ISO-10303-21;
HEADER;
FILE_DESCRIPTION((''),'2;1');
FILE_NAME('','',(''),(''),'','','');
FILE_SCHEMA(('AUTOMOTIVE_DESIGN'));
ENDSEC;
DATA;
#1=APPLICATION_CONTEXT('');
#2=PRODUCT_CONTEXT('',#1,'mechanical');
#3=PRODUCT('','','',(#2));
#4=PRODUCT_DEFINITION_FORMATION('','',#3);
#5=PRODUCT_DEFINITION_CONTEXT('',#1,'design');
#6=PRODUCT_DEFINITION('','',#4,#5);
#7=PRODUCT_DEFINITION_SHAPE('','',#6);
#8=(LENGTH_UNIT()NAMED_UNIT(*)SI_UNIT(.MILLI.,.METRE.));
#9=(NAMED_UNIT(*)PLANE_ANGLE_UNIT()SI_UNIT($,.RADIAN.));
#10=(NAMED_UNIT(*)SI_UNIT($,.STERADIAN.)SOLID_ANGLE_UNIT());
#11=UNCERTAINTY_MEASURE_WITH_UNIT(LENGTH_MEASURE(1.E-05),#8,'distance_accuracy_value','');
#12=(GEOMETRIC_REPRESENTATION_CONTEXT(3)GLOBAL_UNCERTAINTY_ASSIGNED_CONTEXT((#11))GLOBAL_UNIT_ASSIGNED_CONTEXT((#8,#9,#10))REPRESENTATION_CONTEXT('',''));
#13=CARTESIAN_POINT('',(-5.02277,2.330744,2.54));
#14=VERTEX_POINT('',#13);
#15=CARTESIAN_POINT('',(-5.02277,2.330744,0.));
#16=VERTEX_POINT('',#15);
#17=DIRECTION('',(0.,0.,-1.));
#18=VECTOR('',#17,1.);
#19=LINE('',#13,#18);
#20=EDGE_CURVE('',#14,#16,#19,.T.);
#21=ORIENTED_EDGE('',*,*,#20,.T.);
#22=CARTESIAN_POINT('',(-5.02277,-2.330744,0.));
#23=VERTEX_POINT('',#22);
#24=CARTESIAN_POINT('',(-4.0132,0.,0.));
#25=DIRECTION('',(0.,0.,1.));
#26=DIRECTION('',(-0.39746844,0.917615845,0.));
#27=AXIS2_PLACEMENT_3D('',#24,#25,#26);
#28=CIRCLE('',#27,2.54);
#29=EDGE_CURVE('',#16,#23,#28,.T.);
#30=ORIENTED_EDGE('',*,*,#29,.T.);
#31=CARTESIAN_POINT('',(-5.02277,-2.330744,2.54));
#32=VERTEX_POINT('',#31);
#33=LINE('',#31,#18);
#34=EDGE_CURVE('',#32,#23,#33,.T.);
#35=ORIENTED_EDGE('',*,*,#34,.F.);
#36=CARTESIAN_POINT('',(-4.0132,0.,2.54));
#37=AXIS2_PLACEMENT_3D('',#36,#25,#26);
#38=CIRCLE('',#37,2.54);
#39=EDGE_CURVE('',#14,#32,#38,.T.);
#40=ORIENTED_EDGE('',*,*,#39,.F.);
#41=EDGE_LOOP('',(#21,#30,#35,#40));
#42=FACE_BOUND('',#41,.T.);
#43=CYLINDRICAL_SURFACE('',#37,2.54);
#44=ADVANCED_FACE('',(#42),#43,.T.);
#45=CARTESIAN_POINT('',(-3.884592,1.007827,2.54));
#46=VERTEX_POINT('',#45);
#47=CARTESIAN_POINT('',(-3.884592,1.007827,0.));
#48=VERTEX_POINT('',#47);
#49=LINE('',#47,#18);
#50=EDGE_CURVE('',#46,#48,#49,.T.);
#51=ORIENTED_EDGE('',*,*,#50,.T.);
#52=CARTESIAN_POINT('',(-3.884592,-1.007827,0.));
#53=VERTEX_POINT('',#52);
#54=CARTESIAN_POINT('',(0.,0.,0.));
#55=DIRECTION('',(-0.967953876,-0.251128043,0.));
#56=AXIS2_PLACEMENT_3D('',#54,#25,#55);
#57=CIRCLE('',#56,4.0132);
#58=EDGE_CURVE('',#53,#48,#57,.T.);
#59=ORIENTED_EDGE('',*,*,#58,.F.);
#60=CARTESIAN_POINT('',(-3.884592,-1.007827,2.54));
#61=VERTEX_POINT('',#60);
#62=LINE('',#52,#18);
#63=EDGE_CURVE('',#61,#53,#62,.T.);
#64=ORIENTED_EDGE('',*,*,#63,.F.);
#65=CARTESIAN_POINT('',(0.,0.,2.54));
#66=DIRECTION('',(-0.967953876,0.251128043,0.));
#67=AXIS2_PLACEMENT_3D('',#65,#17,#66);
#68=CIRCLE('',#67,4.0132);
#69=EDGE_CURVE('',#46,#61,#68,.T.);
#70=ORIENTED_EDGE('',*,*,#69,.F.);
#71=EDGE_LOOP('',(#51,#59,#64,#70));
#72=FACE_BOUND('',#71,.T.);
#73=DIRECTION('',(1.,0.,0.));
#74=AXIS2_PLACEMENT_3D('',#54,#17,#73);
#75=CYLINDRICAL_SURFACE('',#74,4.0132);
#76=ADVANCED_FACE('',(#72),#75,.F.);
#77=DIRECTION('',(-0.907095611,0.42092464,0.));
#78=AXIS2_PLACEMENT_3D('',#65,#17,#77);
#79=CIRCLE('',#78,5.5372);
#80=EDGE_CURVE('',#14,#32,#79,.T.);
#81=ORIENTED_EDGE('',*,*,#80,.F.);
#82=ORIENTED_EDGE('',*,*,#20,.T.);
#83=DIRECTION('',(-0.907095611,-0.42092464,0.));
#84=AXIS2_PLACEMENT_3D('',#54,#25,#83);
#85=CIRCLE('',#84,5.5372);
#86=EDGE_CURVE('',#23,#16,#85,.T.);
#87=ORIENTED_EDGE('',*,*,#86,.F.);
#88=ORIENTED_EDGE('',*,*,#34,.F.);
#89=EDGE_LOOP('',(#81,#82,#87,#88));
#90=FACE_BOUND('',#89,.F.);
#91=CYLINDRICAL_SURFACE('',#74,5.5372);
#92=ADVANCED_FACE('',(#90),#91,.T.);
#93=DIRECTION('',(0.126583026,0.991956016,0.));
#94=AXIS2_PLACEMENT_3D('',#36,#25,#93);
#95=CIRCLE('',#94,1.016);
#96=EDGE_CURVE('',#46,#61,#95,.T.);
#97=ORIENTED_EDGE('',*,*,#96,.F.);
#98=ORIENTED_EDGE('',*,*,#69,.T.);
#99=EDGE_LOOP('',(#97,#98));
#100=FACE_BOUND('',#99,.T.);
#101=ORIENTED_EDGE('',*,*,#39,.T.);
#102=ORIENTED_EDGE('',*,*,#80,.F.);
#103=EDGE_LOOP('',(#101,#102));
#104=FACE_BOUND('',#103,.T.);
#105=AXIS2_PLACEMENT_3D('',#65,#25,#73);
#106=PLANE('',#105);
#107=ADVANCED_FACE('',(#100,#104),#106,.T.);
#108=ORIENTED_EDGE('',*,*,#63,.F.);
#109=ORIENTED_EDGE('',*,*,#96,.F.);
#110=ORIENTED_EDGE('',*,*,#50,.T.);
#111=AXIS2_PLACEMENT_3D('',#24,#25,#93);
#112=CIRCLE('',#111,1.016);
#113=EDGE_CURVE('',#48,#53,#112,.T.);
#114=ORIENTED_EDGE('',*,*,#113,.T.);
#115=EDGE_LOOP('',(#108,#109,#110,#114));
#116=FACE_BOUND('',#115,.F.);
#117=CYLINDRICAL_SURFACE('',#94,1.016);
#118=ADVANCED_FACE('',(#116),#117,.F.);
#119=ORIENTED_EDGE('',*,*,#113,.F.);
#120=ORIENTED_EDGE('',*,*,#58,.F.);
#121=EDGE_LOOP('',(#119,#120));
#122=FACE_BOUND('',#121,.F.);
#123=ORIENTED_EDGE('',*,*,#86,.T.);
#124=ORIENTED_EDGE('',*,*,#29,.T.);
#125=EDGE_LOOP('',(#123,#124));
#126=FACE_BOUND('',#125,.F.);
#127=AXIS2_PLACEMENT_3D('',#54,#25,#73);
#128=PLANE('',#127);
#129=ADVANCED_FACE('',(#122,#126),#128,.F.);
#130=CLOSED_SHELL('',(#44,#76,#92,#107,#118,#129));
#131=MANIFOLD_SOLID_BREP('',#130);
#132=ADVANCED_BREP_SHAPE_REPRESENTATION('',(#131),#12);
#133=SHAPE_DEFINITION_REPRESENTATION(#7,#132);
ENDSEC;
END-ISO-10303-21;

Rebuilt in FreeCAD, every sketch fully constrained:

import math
import FreeCAD as App
import Part
import Sketcher

V = App.Vector
Q = App.Units.Quantity

doc = App.newDocument("Part")
body = doc.addObject("PartDesign::Body", "Body")

# Sketch on XY plane
sketch1 = doc.addObject("Sketcher::SketchObject", "Sketch")
body.addObject(sketch1)
sketch1.AttachmentSupport = (doc.XY_Plane, [""])
sketch1.MapMode = "FlatFace"
sketch1.addGeometry(Part.Circle(V(0, 0, 0), V(0, 0, 1), 5.5), False)
sketch1.addGeometry(Part.Circle(V(0, 0, 0), V(0, 0, 1), 4), False)
sketch1.addConstraint(Sketcher.Constraint("Coincident", 0, 3, -1, 1))
sketch1.addConstraint(Sketcher.Constraint("Coincident", 1, 3, -1, 1))
sketch1.addConstraint(Sketcher.Constraint("Diameter", 0, Q("0.436 in")))
sketch1.addConstraint(Sketcher.Constraint("Diameter", 1, Q("0.316 in")))
pad1 = doc.addObject("PartDesign::Pad", "Pad")
body.addObject(pad1)
pad1.Profile = sketch1
pad1.Length = Q("0.1 in")

# Sketch on XY plane
sketch2 = doc.addObject("Sketcher::SketchObject", "Sketch001")
body.addObject(sketch2)
sketch2.AttachmentSupport = (doc.XY_Plane, [""])
sketch2.MapMode = "FlatFace"
sketch2.AttachmentOffset = App.Placement(V(0, 0, 0.1 * 25.4), App.Rotation())
sketch2.addGeometry(Part.ArcOfCircle(Part.Circle(V(0, 0, 0), V(0, 0, 1), 4), math.radians(165), math.radians(195)), False)
sketch2.addGeometry(Part.ArcOfCircle(Part.Circle(V(-4, 0, 0), V(0, 0, 1), 1), math.radians(83), math.radians(277)), False)
sketch2.addConstraint(Sketcher.Constraint("Coincident", 0, 1, 1, 1))
sketch2.addConstraint(Sketcher.Constraint("Coincident", 1, 2, 0, 2))
sketch2.addConstraint(Sketcher.Constraint("Symmetric", 0, 1, 1, 2, -1))
sketch2.addConstraint(Sketcher.Constraint("Radius", 1, Q("0.04 in")))
sketch2.addConstraint(Sketcher.Constraint("DistanceX", 1, 3, -1, 1, Q("0.158 in")))
sketch2.addConstraint(Sketcher.Constraint("Radius", 0, Q("4.013185 mm")))
sketch2.addConstraint(Sketcher.Constraint("DistanceX", 0, 1, -1, 1, Q("3.884592 mm")))
pocket1 = doc.addObject("PartDesign::Pocket", "Pocket")
body.addObject(pocket1)
pocket1.Profile = sketch2
pocket1.Type = "ThroughAll"

# Sketch on XY plane
sketch3 = doc.addObject("Sketcher::SketchObject", "Sketch002")
body.addObject(sketch3)
sketch3.AttachmentSupport = (doc.XY_Plane, [""])
sketch3.MapMode = "FlatFace"
sketch3.AttachmentOffset = App.Placement(V(0, 0, 0.1 * 25.4), App.Rotation())
sketch3.addGeometry(Part.ArcOfCircle(Part.Circle(V(0, 0, 0), V(0, 0, 1), 5.5), math.radians(155), math.radians(205)), False)
sketch3.addGeometry(Part.ArcOfCircle(Part.Circle(V(-4, 0, 0), V(0, 0, 1), 2.5), math.radians(113), math.radians(247)), False)
sketch3.addConstraint(Sketcher.Constraint("Coincident", 0, 1, 1, 1))
sketch3.addConstraint(Sketcher.Constraint("Coincident", 1, 2, 0, 2))
sketch3.addConstraint(Sketcher.Constraint("Coincident", 0, 3, -1, 1))
sketch3.addConstraint(Sketcher.Constraint("PointOnObject", 1, 3, -1))
sketch3.addConstraint(Sketcher.Constraint("Radius", 1, Q("0.1 in")))
sketch3.addConstraint(Sketcher.Constraint("Radius", 0, Q("0.2180001 in")))
sketch3.addConstraint(Sketcher.Constraint("DistanceX", 1, 3, -1, 1, Q("0.158 in")))
pad2 = doc.addObject("PartDesign::Pad", "Pad001")
body.addObject(pad2)
pad2.Profile = sketch3
pad2.Length = Q("0.1 in")
pad2.Reversed = True

doc.recompute()
